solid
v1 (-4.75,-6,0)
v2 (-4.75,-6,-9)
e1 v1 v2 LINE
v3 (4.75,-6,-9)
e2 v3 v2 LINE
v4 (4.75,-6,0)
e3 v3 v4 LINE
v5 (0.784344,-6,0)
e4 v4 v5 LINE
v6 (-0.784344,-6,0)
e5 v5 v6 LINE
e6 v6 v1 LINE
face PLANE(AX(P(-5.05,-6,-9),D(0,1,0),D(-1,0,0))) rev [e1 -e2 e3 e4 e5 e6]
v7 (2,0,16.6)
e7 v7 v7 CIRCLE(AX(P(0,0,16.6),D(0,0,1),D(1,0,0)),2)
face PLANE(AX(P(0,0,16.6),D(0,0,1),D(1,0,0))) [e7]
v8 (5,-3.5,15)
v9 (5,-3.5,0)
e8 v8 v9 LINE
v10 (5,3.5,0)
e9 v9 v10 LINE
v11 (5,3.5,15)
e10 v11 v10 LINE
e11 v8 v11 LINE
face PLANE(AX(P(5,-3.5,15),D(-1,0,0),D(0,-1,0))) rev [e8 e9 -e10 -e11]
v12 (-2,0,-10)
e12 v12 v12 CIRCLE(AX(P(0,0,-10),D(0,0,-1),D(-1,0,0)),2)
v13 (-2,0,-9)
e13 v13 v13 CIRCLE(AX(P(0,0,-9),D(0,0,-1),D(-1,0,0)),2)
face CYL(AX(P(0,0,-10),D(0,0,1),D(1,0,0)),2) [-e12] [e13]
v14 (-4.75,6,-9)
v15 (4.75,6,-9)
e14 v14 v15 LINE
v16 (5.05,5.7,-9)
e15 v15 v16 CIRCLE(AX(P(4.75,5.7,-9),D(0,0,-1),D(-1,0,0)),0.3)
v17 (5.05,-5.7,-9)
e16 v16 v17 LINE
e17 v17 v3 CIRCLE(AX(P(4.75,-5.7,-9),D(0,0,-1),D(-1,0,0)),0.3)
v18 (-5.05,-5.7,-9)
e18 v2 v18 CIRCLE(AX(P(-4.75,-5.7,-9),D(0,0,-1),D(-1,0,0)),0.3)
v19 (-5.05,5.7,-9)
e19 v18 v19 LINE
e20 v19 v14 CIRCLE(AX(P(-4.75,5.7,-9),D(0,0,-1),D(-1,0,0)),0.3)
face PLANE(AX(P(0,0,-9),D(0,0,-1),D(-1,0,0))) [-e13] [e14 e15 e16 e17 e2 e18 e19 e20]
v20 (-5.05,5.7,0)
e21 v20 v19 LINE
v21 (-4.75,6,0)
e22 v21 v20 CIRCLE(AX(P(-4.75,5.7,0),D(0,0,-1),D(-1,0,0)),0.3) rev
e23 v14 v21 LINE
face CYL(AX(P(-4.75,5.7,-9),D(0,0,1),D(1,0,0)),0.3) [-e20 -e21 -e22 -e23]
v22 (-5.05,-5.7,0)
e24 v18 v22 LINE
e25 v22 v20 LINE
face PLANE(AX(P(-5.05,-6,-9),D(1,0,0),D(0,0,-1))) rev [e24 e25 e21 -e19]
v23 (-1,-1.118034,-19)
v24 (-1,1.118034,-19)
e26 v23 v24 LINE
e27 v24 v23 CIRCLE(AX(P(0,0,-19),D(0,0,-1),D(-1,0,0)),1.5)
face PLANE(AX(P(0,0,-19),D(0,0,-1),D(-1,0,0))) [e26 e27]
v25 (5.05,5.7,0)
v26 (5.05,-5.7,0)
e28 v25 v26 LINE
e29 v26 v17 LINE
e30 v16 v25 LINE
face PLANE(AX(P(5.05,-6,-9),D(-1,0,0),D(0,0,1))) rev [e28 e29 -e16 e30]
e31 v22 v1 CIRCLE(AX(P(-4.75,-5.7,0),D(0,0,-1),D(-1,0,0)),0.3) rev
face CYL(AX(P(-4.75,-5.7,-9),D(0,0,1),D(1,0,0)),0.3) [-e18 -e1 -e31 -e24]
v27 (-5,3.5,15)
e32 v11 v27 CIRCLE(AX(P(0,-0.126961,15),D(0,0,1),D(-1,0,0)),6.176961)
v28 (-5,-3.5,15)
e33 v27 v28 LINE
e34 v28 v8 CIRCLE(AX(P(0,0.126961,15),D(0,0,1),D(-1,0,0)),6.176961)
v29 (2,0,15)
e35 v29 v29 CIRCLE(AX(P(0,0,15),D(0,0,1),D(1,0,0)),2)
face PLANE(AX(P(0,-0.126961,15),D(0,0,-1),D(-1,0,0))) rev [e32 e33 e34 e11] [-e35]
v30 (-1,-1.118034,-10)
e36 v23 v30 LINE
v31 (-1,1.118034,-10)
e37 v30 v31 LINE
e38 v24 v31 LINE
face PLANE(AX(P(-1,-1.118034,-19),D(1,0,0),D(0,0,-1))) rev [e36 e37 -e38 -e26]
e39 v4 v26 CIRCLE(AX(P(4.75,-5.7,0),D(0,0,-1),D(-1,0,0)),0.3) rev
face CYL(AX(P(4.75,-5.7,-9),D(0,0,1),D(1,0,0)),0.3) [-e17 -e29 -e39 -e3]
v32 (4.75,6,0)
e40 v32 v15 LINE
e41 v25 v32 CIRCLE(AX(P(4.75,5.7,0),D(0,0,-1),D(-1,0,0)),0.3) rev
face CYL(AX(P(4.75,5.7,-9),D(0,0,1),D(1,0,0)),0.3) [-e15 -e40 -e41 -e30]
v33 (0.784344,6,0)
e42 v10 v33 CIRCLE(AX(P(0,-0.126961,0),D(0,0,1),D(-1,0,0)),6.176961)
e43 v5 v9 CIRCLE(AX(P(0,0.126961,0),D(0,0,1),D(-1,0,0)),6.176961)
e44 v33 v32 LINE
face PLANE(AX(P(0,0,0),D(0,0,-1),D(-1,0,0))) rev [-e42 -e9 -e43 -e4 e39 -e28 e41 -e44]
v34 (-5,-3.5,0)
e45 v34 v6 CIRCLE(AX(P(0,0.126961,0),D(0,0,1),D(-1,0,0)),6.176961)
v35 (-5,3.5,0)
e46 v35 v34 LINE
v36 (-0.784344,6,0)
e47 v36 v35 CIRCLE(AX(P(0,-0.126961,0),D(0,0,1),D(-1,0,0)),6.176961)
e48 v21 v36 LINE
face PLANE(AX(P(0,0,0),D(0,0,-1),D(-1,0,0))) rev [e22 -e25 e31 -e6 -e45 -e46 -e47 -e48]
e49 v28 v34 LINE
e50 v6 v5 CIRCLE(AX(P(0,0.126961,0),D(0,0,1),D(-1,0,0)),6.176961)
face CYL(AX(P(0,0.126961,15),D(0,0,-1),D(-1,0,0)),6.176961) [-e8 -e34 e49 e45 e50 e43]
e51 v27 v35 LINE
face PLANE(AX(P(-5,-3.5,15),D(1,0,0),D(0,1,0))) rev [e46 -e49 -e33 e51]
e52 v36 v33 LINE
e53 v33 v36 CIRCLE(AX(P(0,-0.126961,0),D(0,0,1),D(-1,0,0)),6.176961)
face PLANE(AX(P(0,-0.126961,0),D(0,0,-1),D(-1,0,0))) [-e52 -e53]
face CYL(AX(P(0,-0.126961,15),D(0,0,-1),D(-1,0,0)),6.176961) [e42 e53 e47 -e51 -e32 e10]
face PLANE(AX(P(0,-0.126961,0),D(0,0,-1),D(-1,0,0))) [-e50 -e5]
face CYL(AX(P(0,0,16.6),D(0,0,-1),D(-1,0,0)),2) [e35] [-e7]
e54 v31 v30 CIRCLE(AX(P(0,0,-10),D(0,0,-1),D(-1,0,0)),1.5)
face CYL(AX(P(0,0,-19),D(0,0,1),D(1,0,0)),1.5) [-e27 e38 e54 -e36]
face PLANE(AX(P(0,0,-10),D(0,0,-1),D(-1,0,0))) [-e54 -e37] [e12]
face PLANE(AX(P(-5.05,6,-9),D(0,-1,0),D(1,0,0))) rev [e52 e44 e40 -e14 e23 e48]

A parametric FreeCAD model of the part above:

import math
import FreeCAD as App
import Part
import Sketcher
from FreeCAD import Vector


def edges_at(feature, points):
    """Names of the edges that pass closest to the given points."""
    edges = feature.Shape.Edges
    near = lambda p: min(range(len(edges)), key=lambda i: edges[i].distToShape(Part.Vertex(*p))[0])
    return sorted({f"Edge{near(p) + 1}" for p in points})

doc = App.newDocument("Part")
body = doc.addObject("PartDesign::Body", "Body")

sketch1 = body.newObject("Sketcher::SketchObject", "Sketch")
sketch1.AttachmentSupport = (doc.getObject("XY_Plane"), [""])
sketch1.MapMode = "FlatFace"
sketch1.addGeometry([
    Part.LineSegment(Vector(5, -3.5, 0), Vector(5, 3.5, 0)),
    Part.ArcOfCircle(Part.Circle(Vector(0, -0.126961, 0), Vector(0, 0, 1), 6.176961), math.radians(35.956837), math.radians(144.043163)),
    Part.LineSegment(Vector(-5, 3.5, 0), Vector(-5, -3.5, 0)),
    Part.ArcOfCircle(Part.Circle(Vector(0, 0.126961, 0), Vector(0, 0, 1), 6.176961), math.radians(-144.043163), math.radians(-35.956837)),
], False)
sketch1.addConstraint([
    Sketcher.Constraint("Coincident", 0, 2, 1, 1),
    Sketcher.Constraint("Coincident", 1, 2, 2, 1),
    Sketcher.Constraint("Coincident", 2, 2, 3, 1),
    Sketcher.Constraint("Coincident", 3, 2, 0, 1),
    Sketcher.Constraint("Vertical", 0),
    Sketcher.Constraint("Vertical", 2),
    Sketcher.Constraint("Equal", 1, 3),
    Sketcher.Constraint("Symmetric", 1, 3, 3, 3, -1, 1),
    Sketcher.Constraint("Symmetric", 0, 2, 1, 2, -2),
    Sketcher.Constraint("DistanceY", 0, 1, 0, 2, 7.0),
    Sketcher.Constraint("DistanceX", -1, 1, 0, 2, 5.0),
    Sketcher.Constraint("Radius", 1, 6.176961),
])
pad1 = body.newObject("PartDesign::Pad", "Pad")
pad1.Profile = sketch1
pad1.Length = 15

sketch2 = body.newObject("Sketcher::SketchObject", "Sketch001")
sketch2.AttachmentSupport = (doc.getObject("XY_Plane"), [""])
sketch2.MapMode = "FlatFace"
sketch2.addGeometry([
    Part.LineSegment(Vector(5, 6, 0), Vector(5, -6, 0)),
    Part.LineSegment(Vector(5, -6, 0), Vector(-5, -6, 0)),
    Part.LineSegment(Vector(-5, -6, 0), Vector(-5, 6, 0)),
    Part.LineSegment(Vector(-5, 6, 0), Vector(5, 6, 0)),
], False)
sketch2.addConstraint([
    Sketcher.Constraint("Coincident", 0, 2, 1, 1),
    Sketcher.Constraint("Coincident", 1, 2, 2, 1),
    Sketcher.Constraint("Coincident", 2, 2, 3, 1),
    Sketcher.Constraint("Coincident", 3, 2, 0, 1),
    Sketcher.Constraint("Vertical", 0),
    Sketcher.Constraint("Horizontal", 1),
    Sketcher.Constraint("Vertical", 2),
    Sketcher.Constraint("Horizontal", 3),
    Sketcher.Constraint("Symmetric", 0, 2, 2, 2, -1, 1),
    Sketcher.Constraint("DistanceY", 0, 2, 0, 1, 12.0),
    Sketcher.Constraint("DistanceX", 1, 2, 1, 1, 10.1),
])
pad2 = body.newObject("PartDesign::Pad", "Pad001")
pad2.Profile = sketch2
pad2.Length = 9
pad2.Reversed = True

sketch3 = body.newObject("Sketcher::SketchObject", "Sketch002")
sketch3.AttachmentSupport = (doc.getObject("XY_Plane"), [""])
sketch3.MapMode = "FlatFace"
sketch3.AttachmentOffset = App.Placement(Vector(0, 0, -9), App.Rotation())
sketch3.addGeometry([
    Part.LineSegment(Vector(-1, -1.1, 0), Vector(-1, 1.1, 0)),
    Part.ArcOfCircle(Part.Circle(Vector(0, 0, 0), Vector(0, 0, 1), 1.5), math.radians(-132), math.radians(132)),
], False)
sketch3.addConstraint([
    Sketcher.Constraint("Coincident", 0, 1, 1, 1),
    Sketcher.Constraint("Coincident", 1, 2, 0, 2),
    Sketcher.Constraint("Vertical", 0),
    Sketcher.Constraint("Coincident", 1, 3, -1, 1),
    Sketcher.Constraint("Radius", 1, 1.5),
    Sketcher.Constraint("DistanceX", 0, 1, -1, 1, 1.0),
])
pad3 = body.newObject("PartDesign::Pad", "Pad002")
pad3.Profile = sketch3
pad3.Length = 10
pad3.Reversed = True

sketch4 = body.newObject("Sketcher::SketchObject", "Sketch003")
sketch4.AttachmentSupport = (doc.getObject("XY_Plane"), [""])
sketch4.MapMode = "FlatFace"
sketch4.AttachmentOffset = App.Placement(Vector(0, 0, -9), App.Rotation())
sketch4.addGeometry(Part.Circle(Vector(0, 0, 0), Vector(0, 0, 1), 2), False)
sketch4.addConstraint([
    Sketcher.Constraint("Coincident", 0, 3, -1, 1),
    Sketcher.Constraint("Diameter", 0, 4.0),
])
pad4 = body.newObject("PartDesign::Pad", "Pad003")
pad4.Profile = sketch4
pad4.Length = 1
pad4.Reversed = True

sketch5 = body.newObject("Sketcher::SketchObject", "Sketch004")
sketch5.AttachmentSupport = (doc.getObject("XY_Plane"), [""])
sketch5.MapMode = "FlatFace"
sketch5.AttachmentOffset = App.Placement(Vector(0, 0, 16.6), App.Rotation())
sketch5.addGeometry(Part.Circle(Vector(0, 0, 0), Vector(0, 0, 1), 2), False)
sketch5.addConstraint([
    Sketcher.Constraint("Coincident", 0, 3, -1, 1),
    Sketcher.Constraint("Diameter", 0, 4.0),
])
pad5 = body.newObject("PartDesign::Pad", "Pad004")
pad5.Profile = sketch5
pad5.Length = 1.6
pad5.Reversed = True
doc.recompute()

fillet = body.newObject("PartDesign::Fillet", "Fillet")
fillet.Base = (pad5, edges_at(pad5, [
    (5.05, 6, -4.5),
    (5.05, -6, -4.5),
    (-5.05, -6, -4.5),
    (-5.05, 6, -4.5),
]))
fillet.Radius = 0.3

doc.recompute()
